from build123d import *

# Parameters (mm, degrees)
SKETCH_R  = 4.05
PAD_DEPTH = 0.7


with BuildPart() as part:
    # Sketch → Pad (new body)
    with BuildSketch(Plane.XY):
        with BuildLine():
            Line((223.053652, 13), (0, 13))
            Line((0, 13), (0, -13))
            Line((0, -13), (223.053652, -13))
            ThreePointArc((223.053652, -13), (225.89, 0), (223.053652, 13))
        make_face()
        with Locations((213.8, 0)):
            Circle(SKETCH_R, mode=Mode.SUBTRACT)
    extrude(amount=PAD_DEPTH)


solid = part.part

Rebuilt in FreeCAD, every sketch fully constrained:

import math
import FreeCAD as App
import Part
import Sketcher
from FreeCAD import Vector
Q = App.Units.Quantity

doc = App.newDocument("Part")
body = doc.addObject("PartDesign::Body", "Body")

# Sketch on XY plane
sketch1 = body.newObject("Sketcher::SketchObject", "Sketch")
sketch1.AttachmentSupport = (doc.getObject("XY_Plane"), [""])
sketch1.MapMode = "FlatFace"
sketch1.addGeometry([
    Part.LineSegment(Vector(223.1, 13, 0), Vector(0, 13, 0)),  # 0
    Part.LineSegment(Vector(0, 13, 0), Vector(0, -13, 0)),  # 1
    Part.LineSegment(Vector(0, -13, 0), Vector(223.1, -13, 0)),  # 2
    Part.ArcOfCircle(Part.Circle(Vector(194.7, 0, 0), Vector(0, 0, 1), 31.2), math.radians(-25), math.radians(25)),  # 3
    Part.Circle(Vector(213.8, 0, 0), Vector(0, 0, 1), 4),  # 4
], False)
sketch1.addConstraint([
    Sketcher.Constraint("Coincident", 0, 2, 1, 1),
    Sketcher.Constraint("Coincident", 1, 2, 2, 1),
    Sketcher.Constraint("Coincident", 2, 2, 3, 1),
    Sketcher.Constraint("Coincident", 3, 2, 0, 1),
    Sketcher.Constraint("Horizontal", 0),
    Sketcher.Constraint("Vertical", 1),
    Sketcher.Constraint("Horizontal", 2),
    Sketcher.Constraint("Symmetric", 0, 2, 1, 2, -1, 1),
    Sketcher.Constraint("PointOnObject", 3, 3, -1),
    Sketcher.Constraint("PointOnObject", 4, 3, -1),
    Sketcher.Constraint("Diameter", 4, Q("8.1 mm")),
    Sketcher.Constraint("DistanceY", 1, 2, 1, 1, Q("26 mm")),
    Sketcher.Constraint("DistanceX", -1, 1, 4, 3, Q("213.8 mm")),
    Sketcher.Constraint("Radius", 3, Q("31.210005 mm")),
    Sketcher.Constraint("DistanceX", 0, 2, 0, 1, Q("223.053652 mm")),
])
pad1 = body.newObject("PartDesign::Pad", "Pad")
pad1.Profile = sketch1
pad1.Length = 0.7

doc.recompute()
